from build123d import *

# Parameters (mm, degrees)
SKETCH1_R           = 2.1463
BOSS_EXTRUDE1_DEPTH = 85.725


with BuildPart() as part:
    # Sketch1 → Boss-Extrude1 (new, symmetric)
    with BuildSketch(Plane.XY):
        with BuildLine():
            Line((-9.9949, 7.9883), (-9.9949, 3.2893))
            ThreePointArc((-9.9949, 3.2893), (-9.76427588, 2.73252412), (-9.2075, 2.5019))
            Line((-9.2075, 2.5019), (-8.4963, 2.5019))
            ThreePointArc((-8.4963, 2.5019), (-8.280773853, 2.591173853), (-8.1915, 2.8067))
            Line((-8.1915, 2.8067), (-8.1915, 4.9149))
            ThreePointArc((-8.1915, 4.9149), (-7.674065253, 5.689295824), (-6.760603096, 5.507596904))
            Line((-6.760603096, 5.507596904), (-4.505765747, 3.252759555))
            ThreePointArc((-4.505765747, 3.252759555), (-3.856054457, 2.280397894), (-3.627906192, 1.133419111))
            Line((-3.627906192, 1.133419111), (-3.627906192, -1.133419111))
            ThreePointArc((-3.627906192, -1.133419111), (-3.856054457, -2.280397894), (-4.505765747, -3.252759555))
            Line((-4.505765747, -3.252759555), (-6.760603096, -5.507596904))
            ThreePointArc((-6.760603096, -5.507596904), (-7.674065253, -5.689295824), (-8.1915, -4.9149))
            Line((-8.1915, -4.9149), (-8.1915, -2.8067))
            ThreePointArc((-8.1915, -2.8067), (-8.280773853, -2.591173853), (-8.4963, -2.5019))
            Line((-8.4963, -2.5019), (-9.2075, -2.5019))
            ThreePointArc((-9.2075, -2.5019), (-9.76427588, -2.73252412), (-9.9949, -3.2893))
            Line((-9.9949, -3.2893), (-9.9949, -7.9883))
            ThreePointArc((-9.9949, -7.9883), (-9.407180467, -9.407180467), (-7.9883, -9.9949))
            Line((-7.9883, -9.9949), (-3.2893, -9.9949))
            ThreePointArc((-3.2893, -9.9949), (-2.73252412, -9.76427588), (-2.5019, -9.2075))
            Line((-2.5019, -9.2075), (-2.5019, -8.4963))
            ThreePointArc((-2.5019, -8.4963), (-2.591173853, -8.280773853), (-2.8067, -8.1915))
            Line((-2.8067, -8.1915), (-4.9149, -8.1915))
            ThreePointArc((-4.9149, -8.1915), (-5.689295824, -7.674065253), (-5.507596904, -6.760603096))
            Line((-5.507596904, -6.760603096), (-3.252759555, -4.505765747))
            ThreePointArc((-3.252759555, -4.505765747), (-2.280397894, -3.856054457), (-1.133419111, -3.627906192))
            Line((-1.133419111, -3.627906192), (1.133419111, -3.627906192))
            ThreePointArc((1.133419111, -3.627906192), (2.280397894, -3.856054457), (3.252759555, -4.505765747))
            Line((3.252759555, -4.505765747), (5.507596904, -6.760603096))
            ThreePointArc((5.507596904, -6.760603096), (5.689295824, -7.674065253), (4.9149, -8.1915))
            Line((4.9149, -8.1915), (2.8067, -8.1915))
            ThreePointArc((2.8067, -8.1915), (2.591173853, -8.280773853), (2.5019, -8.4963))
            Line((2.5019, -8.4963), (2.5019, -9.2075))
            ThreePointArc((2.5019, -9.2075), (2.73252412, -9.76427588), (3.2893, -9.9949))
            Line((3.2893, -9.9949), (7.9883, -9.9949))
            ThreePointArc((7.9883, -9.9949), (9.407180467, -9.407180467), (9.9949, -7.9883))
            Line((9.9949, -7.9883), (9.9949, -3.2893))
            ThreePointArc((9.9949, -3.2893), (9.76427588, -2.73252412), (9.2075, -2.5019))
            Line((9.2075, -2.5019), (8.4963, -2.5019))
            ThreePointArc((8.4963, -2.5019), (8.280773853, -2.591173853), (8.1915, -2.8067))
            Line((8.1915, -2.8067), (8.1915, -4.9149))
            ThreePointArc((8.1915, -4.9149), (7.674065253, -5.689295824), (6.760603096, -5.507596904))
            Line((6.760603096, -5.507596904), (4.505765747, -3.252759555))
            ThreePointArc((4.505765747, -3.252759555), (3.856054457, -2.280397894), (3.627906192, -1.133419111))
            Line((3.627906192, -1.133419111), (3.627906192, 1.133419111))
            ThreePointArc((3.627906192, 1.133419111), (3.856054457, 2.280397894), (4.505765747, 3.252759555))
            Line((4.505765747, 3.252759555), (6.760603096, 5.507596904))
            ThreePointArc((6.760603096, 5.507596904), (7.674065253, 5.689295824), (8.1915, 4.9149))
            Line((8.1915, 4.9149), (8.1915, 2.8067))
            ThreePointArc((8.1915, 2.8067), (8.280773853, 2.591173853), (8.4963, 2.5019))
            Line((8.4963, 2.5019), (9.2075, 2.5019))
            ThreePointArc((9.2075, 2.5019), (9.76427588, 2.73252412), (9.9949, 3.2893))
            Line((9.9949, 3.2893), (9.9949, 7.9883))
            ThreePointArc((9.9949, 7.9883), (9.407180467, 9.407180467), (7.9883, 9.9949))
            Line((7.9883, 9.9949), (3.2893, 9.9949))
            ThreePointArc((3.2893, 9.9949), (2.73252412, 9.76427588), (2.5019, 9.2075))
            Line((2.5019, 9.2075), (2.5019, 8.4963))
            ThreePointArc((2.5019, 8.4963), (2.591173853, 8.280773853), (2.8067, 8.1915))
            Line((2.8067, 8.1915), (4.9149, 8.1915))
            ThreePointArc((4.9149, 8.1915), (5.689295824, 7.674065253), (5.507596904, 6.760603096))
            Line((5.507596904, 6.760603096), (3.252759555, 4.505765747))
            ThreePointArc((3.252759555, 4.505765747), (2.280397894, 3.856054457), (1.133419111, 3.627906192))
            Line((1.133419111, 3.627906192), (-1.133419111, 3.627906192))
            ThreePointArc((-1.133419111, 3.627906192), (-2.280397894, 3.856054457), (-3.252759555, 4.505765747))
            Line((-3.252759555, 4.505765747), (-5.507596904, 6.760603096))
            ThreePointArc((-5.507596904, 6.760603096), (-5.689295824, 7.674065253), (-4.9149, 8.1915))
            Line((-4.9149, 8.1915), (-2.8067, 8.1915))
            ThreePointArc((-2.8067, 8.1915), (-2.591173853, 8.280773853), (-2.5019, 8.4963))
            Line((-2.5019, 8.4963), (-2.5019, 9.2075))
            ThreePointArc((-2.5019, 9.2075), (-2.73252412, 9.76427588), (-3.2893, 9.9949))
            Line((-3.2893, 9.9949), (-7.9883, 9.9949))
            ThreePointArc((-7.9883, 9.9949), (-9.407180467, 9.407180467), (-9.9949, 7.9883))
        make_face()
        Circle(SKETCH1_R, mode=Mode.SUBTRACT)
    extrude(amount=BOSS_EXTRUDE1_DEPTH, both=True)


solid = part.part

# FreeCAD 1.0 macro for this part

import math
import FreeCAD as App
import Part
import Sketcher
Q = App.Units.Quantity

doc = App.newDocument("Part")
body = doc.addObject("PartDesign::Body", "Body")

sketch1 = body.newObject("Sketcher::SketchObject", "Sketch")
sketch1.AttachmentSupport = (doc.getObject("XY_Plane"), [""])
sketch1.MapMode = "FlatFace"
sketch1.addGeometry([
    Part.LineSegment(App.Vector(-9.9949, 7.9883, 0), App.Vector(-9.9949, 3.2893, 0)),
    Part.ArcOfCircle(Part.Circle(App.Vector(-9.2075, 3.2893, 0), App.Vector(0, 0, 1), 0.7874), math.radians(180), math.radians(270)),
    Part.LineSegment(App.Vector(-9.2075, 2.5019, 0), App.Vector(-8.4963, 2.5019, 0)),
    Part.ArcOfCircle(Part.Circle(App.Vector(-8.4963, 2.8067, 0), App.Vector(0, 0, 1), 0.3048), math.radians(-90), math.radians(0)),
    Part.LineSegment(App.Vector(-8.1915, 2.8067, 0), App.Vector(-8.1915, 4.9149, 0)),
    Part.ArcOfCircle(Part.Circle(App.Vector(-7.3533, 4.9149, 0), App.Vector(0, 0, 1), 0.8382), math.radians(45), math.radians(180)),
    Part.LineSegment(App.Vector(-6.760603, 5.507597, 0), App.Vector(-4.505766, 3.25276, 0)),
    Part.ArcOfCircle(Part.Circle(App.Vector(-6.625106, 1.133419, 0), App.Vector(0, 0, 1), 2.9972), math.radians(0), math.radians(45)),
    Part.LineSegment(App.Vector(-3.627906, 1.133419, 0), App.Vector(-3.627906, -1.133419, 0)),
    Part.ArcOfCircle(Part.Circle(App.Vector(-6.625106, -1.133419, 0), App.Vector(0, 0, 1), 2.9972), math.radians(-45), math.radians(0)),
    Part.LineSegment(App.Vector(-4.505766, -3.25276, 0), App.Vector(-6.760603, -5.507597, 0)),
    Part.ArcOfCircle(Part.Circle(App.Vector(-7.3533, -4.9149, 0), App.Vector(0, 0, 1), 0.8382), math.radians(180), math.radians(315)),
    Part.LineSegment(App.Vector(-8.1915, -4.9149, 0), App.Vector(-8.1915, -2.8067, 0)),
    Part.ArcOfCircle(Part.Circle(App.Vector(-8.4963, -2.8067, 0), App.Vector(0, 0, 1), 0.3048), math.radians(0), math.radians(90)),
    Part.LineSegment(App.Vector(-8.4963, -2.5019, 0), App.Vector(-9.2075, -2.5019, 0)),
    Part.ArcOfCircle(Part.Circle(App.Vector(-9.2075, -3.2893, 0), App.Vector(0, 0, 1), 0.7874), math.radians(90), math.radians(180)),
    Part.LineSegment(App.Vector(-9.9949, -3.2893, 0), App.Vector(-9.9949, -7.9883, 0)),
    Part.ArcOfCircle(Part.Circle(App.Vector(-7.9883, -7.9883, 0), App.Vector(0, 0, 1), 2.0066), math.radians(180), math.radians(270)),
    Part.LineSegment(App.Vector(-7.9883, -9.9949, 0), App.Vector(-3.2893, -9.9949, 0)),
    Part.ArcOfCircle(Part.Circle(App.Vector(-3.2893, -9.2075, 0), App.Vector(0, 0, 1), 0.7874), math.radians(-90), math.radians(0)),
    Part.LineSegment(App.Vector(-2.5019, -9.2075, 0), App.Vector(-2.5019, -8.4963, 0)),
    Part.ArcOfCircle(Part.Circle(App.Vector(-2.8067, -8.4963, 0), App.Vector(0, 0, 1), 0.3048), math.radians(0), math.radians(90)),
    Part.LineSegment(App.Vector(-2.8067, -8.1915, 0), App.Vector(-4.9149, -8.1915, 0)),
    Part.ArcOfCircle(Part.Circle(App.Vector(-4.9149, -7.3533, 0), App.Vector(0, 0, 1), 0.8382), math.radians(135), math.radians(270)),
    Part.LineSegment(App.Vector(-5.507597, -6.760603, 0), App.Vector(-3.25276, -4.505766, 0)),
    Part.ArcOfCircle(Part.Circle(App.Vector(-1.133419, -6.625106, 0), App.Vector(0, 0, 1), 2.9972), math.radians(90), math.radians(135)),
    Part.LineSegment(App.Vector(-1.133419, -3.627906, 0), App.Vector(1.133419, -3.627906, 0)),
    Part.ArcOfCircle(Part.Circle(App.Vector(1.133419, -6.625106, 0), App.Vector(0, 0, 1), 2.9972), math.radians(45), math.radians(90)),
    Part.LineSegment(App.Vector(3.25276, -4.505766, 0), App.Vector(5.507597, -6.760603, 0)),
    Part.ArcOfCircle(Part.Circle(App.Vector(4.9149, -7.3533, 0), App.Vector(0, 0, 1), 0.8382), math.radians(-90), math.radians(45)),
    Part.LineSegment(App.Vector(4.9149, -8.1915, 0), App.Vector(2.8067, -8.1915, 0)),
    Part.ArcOfCircle(Part.Circle(App.Vector(2.8067, -8.4963, 0), App.Vector(0, 0, 1), 0.3048), math.radians(90), math.radians(180)),
    Part.LineSegment(App.Vector(2.5019, -8.4963, 0), App.Vector(2.5019, -9.2075, 0)),
    Part.ArcOfCircle(Part.Circle(App.Vector(3.2893, -9.2075, 0), App.Vector(0, 0, 1), 0.7874), math.radians(180), math.radians(270)),
    Part.LineSegment(App.Vector(3.2893, -9.9949, 0), App.Vector(7.9883, -9.9949, 0)),
    Part.ArcOfCircle(Part.Circle(App.Vector(7.9883, -7.9883, 0), App.Vector(0, 0, 1), 2.0066), math.radians(-90), math.radians(0)),
    Part.LineSegment(App.Vector(9.9949, -7.9883, 0), App.Vector(9.9949, -3.2893, 0)),
    Part.ArcOfCircle(Part.Circle(App.Vector(9.2075, -3.2893, 0), App.Vector(0, 0, 1), 0.7874), math.radians(0), math.radians(90)),
    Part.LineSegment(App.Vector(9.2075, -2.5019, 0), App.Vector(8.4963, -2.5019, 0)),
    Part.ArcOfCircle(Part.Circle(App.Vector(8.4963, -2.8067, 0), App.Vector(0, 0, 1), 0.3048), math.radians(90), math.radians(180)),
    Part.LineSegment(App.Vector(8.1915, -2.8067, 0), App.Vector(8.1915, -4.9149, 0)),
    Part.ArcOfCircle(Part.Circle(App.Vector(7.3533, -4.9149, 0), App.Vector(0, 0, 1), 0.8382), math.radians(-135), math.radians(0)),
    Part.LineSegment(App.Vector(6.760603, -5.507597, 0), App.Vector(4.505766, -3.25276, 0)),
    Part.ArcOfCircle(Part.Circle(App.Vector(6.625106, -1.133419, 0), App.Vector(0, 0, 1), 2.9972), math.radians(180), math.radians(225)),
    Part.LineSegment(App.Vector(3.627906, -1.133419, 0), App.Vector(3.627906, 1.133419, 0)),
    Part.ArcOfCircle(Part.Circle(App.Vector(6.625106, 1.133419, 0), App.Vector(0, 0, 1), 2.9972), math.radians(135), math.radians(180)),
    Part.LineSegment(App.Vector(4.505766, 3.25276, 0), App.Vector(6.760603, 5.507597, 0)),
    Part.ArcOfCircle(Part.Circle(App.Vector(7.3533, 4.9149, 0), App.Vector(0, 0, 1), 0.8382), math.radians(0), math.radians(135)),
    Part.LineSegment(App.Vector(8.1915, 4.9149, 0), App.Vector(8.1915, 2.8067, 0)),
    Part.ArcOfCircle(Part.Circle(App.Vector(8.4963, 2.8067, 0), App.Vector(0, 0, 1), 0.3048), math.radians(180), math.radians(270)),
    Part.LineSegment(App.Vector(8.4963, 2.5019, 0), App.Vector(9.2075, 2.5019, 0)),
    Part.ArcOfCircle(Part.Circle(App.Vector(9.2075, 3.2893, 0), App.Vector(0, 0, 1), 0.7874), math.radians(-90), math.radians(0)),
    Part.LineSegment(App.Vector(9.9949, 3.2893, 0), App.Vector(9.9949, 7.9883, 0)),
    Part.ArcOfCircle(Part.Circle(App.Vector(7.9883, 7.9883, 0), App.Vector(0, 0, 1), 2.0066), math.radians(0), math.radians(90)),
    Part.LineSegment(App.Vector(7.9883, 9.9949, 0), App.Vector(3.2893, 9.9949, 0)),
    Part.ArcOfCircle(Part.Circle(App.Vector(3.2893, 9.2075, 0), App.Vector(0, 0, 1), 0.7874), math.radians(90), math.radians(180)),
    Part.LineSegment(App.Vector(2.5019, 9.2075, 0), App.Vector(2.5019, 8.4963, 0)),
    Part.ArcOfCircle(Part.Circle(App.Vector(2.8067, 8.4963, 0), App.Vector(0, 0, 1), 0.3048), math.radians(180), math.radians(270)),
    Part.LineSegment(App.Vector(2.8067, 8.1915, 0), App.Vector(4.9149, 8.1915, 0)),
    Part.ArcOfCircle(Part.Circle(App.Vector(4.9149, 7.3533, 0), App.Vector(0, 0, 1), 0.8382), math.radians(-45), math.radians(90)),
    Part.LineSegment(App.Vector(5.507597, 6.760603, 0), App.Vector(3.25276, 4.505766, 0)),
    Part.ArcOfCircle(Part.Circle(App.Vector(1.133419, 6.625106, 0), App.Vector(0, 0, 1), 2.9972), math.radians(-90), math.radians(-45)),
    Part.LineSegment(App.Vector(1.133419, 3.627906, 0), App.Vector(-1.133419, 3.627906, 0)),
    Part.ArcOfCircle(Part.Circle(App.Vector(-1.133419, 6.625106, 0), App.Vector(0, 0, 1), 2.9972), math.radians(-135), math.radians(-90)),
    Part.LineSegment(App.Vector(-3.25276, 4.505766, 0), App.Vector(-5.507597, 6.760603, 0)),
    Part.ArcOfCircle(Part.Circle(App.Vector(-4.9149, 7.3533, 0), App.Vector(0, 0, 1), 0.8382), math.radians(90), math.radians(225)),
    Part.LineSegment(App.Vector(-4.9149, 8.1915, 0), App.Vector(-2.8067, 8.1915, 0)),
    Part.ArcOfCircle(Part.Circle(App.Vector(-2.8067, 8.4963, 0), App.Vector(0, 0, 1), 0.3048), math.radians(-90), math.radians(0)),
    Part.LineSegment(App.Vector(-2.5019, 8.4963, 0), App.Vector(-2.5019, 9.2075, 0)),
    Part.ArcOfCircle(Part.Circle(App.Vector(-3.2893, 9.2075, 0), App.Vector(0, 0, 1), 0.7874), math.radians(0), math.radians(90)),
    Part.LineSegment(App.Vector(-3.2893, 9.9949, 0), App.Vector(-7.9883, 9.9949, 0)),
    Part.ArcOfCircle(Part.Circle(App.Vector(-7.9883, 7.9883, 0), App.Vector(0, 0, 1), 2.0066), math.radians(90), math.radians(180)),
    Part.Circle(App.Vector(0, 0, 0), App.Vector(0, 0, 1), 2.1463),
], False)
sketch1.addConstraint([
    Sketcher.Constraint("Tangent", 0, 2, 1, 1),
    Sketcher.Constraint("Tangent", 1, 2, 2, 1),
    Sketcher.Constraint("Tangent", 2, 2, 3, 1),
    Sketcher.Constraint("Tangent", 3, 2, 4, 1),
    Sketcher.Constraint("Tangent", 4, 2, 5, 2),
    Sketcher.Constraint("Tangent", 5, 1, 6, 1),
    Sketcher.Constraint("Tangent", 6, 2, 7, 2),
    Sketcher.Constraint("Tangent", 7, 1, 8, 1),
    Sketcher.Constraint("Tangent", 8, 2, 9, 2),
    Sketcher.Constraint("Tangent", 9, 1, 10, 1),
    Sketcher.Constraint("Tangent", 10, 2, 11, 2),
    Sketcher.Constraint("Tangent", 11, 1, 12, 1),
    Sketcher.Constraint("Tangent", 12, 2, 13, 1),
    Sketcher.Constraint("Tangent", 13, 2, 14, 1),
    Sketcher.Constraint("Tangent", 14, 2, 15, 1),
    Sketcher.Constraint("Tangent", 15, 2, 16, 1),
    Sketcher.Constraint("Tangent", 16, 2, 17, 1),
    Sketcher.Constraint("Tangent", 17, 2, 18, 1),
    Sketcher.Constraint("Tangent", 18, 2, 19, 1),
    Sketcher.Constraint("Tangent", 19, 2, 20, 1),
    Sketcher.Constraint("Tangent", 20, 2, 21, 1),
    Sketcher.Constraint("Tangent", 21, 2, 22, 1),
    Sketcher.Constraint("Tangent", 22, 2, 23, 2),
    Sketcher.Constraint("Tangent", 23, 1, 24, 1),
    Sketcher.Constraint("Tangent", 24, 2, 25, 2),
    Sketcher.Constraint("Tangent", 25, 1, 26, 1),
    Sketcher.Constraint("Tangent", 26, 2, 27, 2),
    Sketcher.Constraint("Tangent", 27, 1, 28, 1),
    Sketcher.Constraint("Tangent", 28, 2, 29, 2),
    Sketcher.Constraint("Tangent", 29, 1, 30, 1),
    Sketcher.Constraint("Tangent", 30, 2, 31, 1),
    Sketcher.Constraint("Tangent", 31, 2, 32, 1),
    Sketcher.Constraint("Tangent", 32, 2, 33, 1),
    Sketcher.Constraint("Tangent", 33, 2, 34, 1),
    Sketcher.Constraint("Tangent", 34, 2, 35, 1),
    Sketcher.Constraint("Tangent", 35, 2, 36, 1),
    Sketcher.Constraint("Tangent", 36, 2, 37, 1),
    Sketcher.Constraint("Tangent", 37, 2, 38, 1),
    Sketcher.Constraint("Tangent", 38, 2, 39, 1),
    Sketcher.Constraint("Tangent", 39, 2, 40, 1),
    Sketcher.Constraint("Tangent", 40, 2, 41, 2),
    Sketcher.Constraint("Tangent", 41, 1, 42, 1),
    Sketcher.Constraint("Tangent", 42, 2, 43, 2),
    Sketcher.Constraint("Tangent", 43, 1, 44, 1),
    Sketcher.Constraint("Tangent", 44, 2, 45, 2),
    Sketcher.Constraint("Tangent", 45, 1, 46, 1),
    Sketcher.Constraint("Tangent", 46, 2, 47, 2),
    Sketcher.Constraint("Tangent", 47, 1, 48, 1),
    Sketcher.Constraint("Tangent", 48, 2, 49, 1),
    Sketcher.Constraint("Tangent", 49, 2, 50, 1),
    Sketcher.Constraint("Tangent", 50, 2, 51, 1),
    Sketcher.Constraint("Tangent", 51, 2, 52, 1),
    Sketcher.Constraint("Tangent", 52, 2, 53, 1),
    Sketcher.Constraint("Tangent", 53, 2, 54, 1),
    Sketcher.Constraint("Tangent", 54, 2, 55, 1),
    Sketcher.Constraint("Tangent", 55, 2, 56, 1),
    Sketcher.Constraint("Tangent", 56, 2, 57, 1),
    Sketcher.Constraint("Tangent", 57, 2, 58, 1),
    Sketcher.Constraint("Tangent", 58, 2, 59, 2),
    Sketcher.Constraint("Tangent", 59, 1, 60, 1),
    Sketcher.Constraint("Tangent", 60, 2, 61, 2),
    Sketcher.Constraint("Tangent", 61, 1, 62, 1),
    Sketcher.Constraint("Tangent", 62, 2, 63, 2),
    Sketcher.Constraint("Tangent", 63, 1, 64, 1),
    Sketcher.Constraint("Tangent", 64, 2, 65, 2),
    Sketcher.Constraint("Tangent", 65, 1, 66, 1),
    Sketcher.Constraint("Tangent", 66, 2, 67, 1),
    Sketcher.Constraint("Tangent", 67, 2, 68, 1),
    Sketcher.Constraint("Tangent", 68, 2, 69, 1),
    Sketcher.Constraint("Tangent", 69, 2, 70, 1),
    Sketcher.Constraint("Tangent", 70, 2, 71, 1),
    Sketcher.Constraint("Tangent", 71, 2, 0, 1),
    Sketcher.Constraint("Vertical", 0),
    Sketcher.Constraint("Horizontal", 2),
    Sketcher.Constraint("Vertical", 4),
    Sketcher.Constraint("Vertical", 8),
    Sketcher.Constraint("Vertical", 12),
    Sketcher.Constraint("Horizontal", 14),
    Sketcher.Constraint("Vertical", 16),
    Sketcher.Constraint("Horizontal", 18),
    Sketcher.Constraint("Vertical", 20),
    Sketcher.Constraint("Horizontal", 22),
    Sketcher.Constraint("Horizontal", 26),
    Sketcher.Constraint("Horizontal", 30),
    Sketcher.Constraint("Vertical", 32),
    Sketcher.Constraint("Horizontal", 34),
    Sketcher.Constraint("Vertical", 36),
    Sketcher.Constraint("Horizontal", 38),
    Sketcher.Constraint("Vertical", 40),
    Sketcher.Constraint("Vertical", 44),
    Sketcher.Constraint("Vertical", 48),
    Sketcher.Constraint("Horizontal", 50),
    Sketcher.Constraint("Vertical", 52),
    Sketcher.Constraint("Horizontal", 54),
    Sketcher.Constraint("Vertical", 56),
    Sketcher.Constraint("Horizontal", 58),
    Sketcher.Constraint("Horizontal", 62),
    Sketcher.Constraint("Horizontal", 66),
    Sketcher.Constraint("Vertical", 68),
    Sketcher.Constraint("Horizontal", 70),
    Sketcher.Constraint("Coincident", 72, 3, -1, 1),
    Sketcher.Constraint("Equal", 7, 9),
    Sketcher.Constraint("Equal", 5, 11),
    Sketcher.Constraint("Equal", 3, 13),
    Sketcher.Constraint("Equal", 1, 15),
    Sketcher.Constraint("Equal", 15, 19),
    Sketcher.Constraint("Equal", 13, 21),
    Sketcher.Constraint("Equal", 11, 23),
    Sketcher.Constraint("Equal", 9, 25),
    Sketcher.Constraint("Equal", 25, 27),
    Sketcher.Constraint("Equal", 23, 29),
    Sketcher.Constraint("Equal", 21, 31),
    Sketcher.Constraint("Equal", 19, 33),
    Sketcher.Constraint("Equal", 17, 35),
    Sketcher.Constraint("Equal", 33, 37),
    Sketcher.Constraint("Equal", 31, 39),
    Sketcher.Constraint("Equal", 29, 41),
    Sketcher.Constraint("Equal", 27, 43),
    Sketcher.Constraint("Equal", 43, 45),
    Sketcher.Constraint("Equal", 41, 47),
    Sketcher.Constraint("Equal", 39, 49),
    Sketcher.Constraint("Equal", 37, 51),
    Sketcher.Constraint("Equal", 35, 53),
    Sketcher.Constraint("Equal", 51, 55),
    Sketcher.Constraint("Equal", 49, 57),
    Sketcher.Constraint("Equal", 47, 59),
    Sketcher.Constraint("Equal", 45, 61),
    Sketcher.Constraint("Equal", 61, 63),
    Sketcher.Constraint("Equal", 59, 65),
    Sketcher.Constraint("Equal", 57, 67),
    Sketcher.Constraint("Equal", 55, 69),
    Sketcher.Constraint("Equal", 53, 71),
    Sketcher.Constraint("Symmetric", 1, 3, 37, 3, -1, 1),
    Sketcher.Constraint("Symmetric", 5, 3, 41, 3, -1, 1),
    Sketcher.Constraint("Symmetric", 7, 3, 43, 3, -1, 1),
    Sketcher.Constraint("Symmetric", 11, 3, 47, 3, -1, 1),
    Sketcher.Constraint("Symmetric", 15, 3, 51, 3, -1, 1),
    Sketcher.Constraint("Symmetric", 19, 3, 55, 3, -1, 1),
    Sketcher.Constraint("Symmetric", 23, 3, 59, 3, -1, 1),
    Sketcher.Constraint("Symmetric", 25, 3, 61, 3, -1, 1),
    Sketcher.Constraint("Symmetric", 29, 3, 65, 3, -1, 1),
    Sketcher.Constraint("Symmetric", 33, 3, 69, 3, -1, 1),
    Sketcher.Constraint("Symmetric", 23, 3, 29, 3, -2),
    Sketcher.Constraint("Symmetric", 19, 3, 33, 3, -2),
    Sketcher.Constraint("Symmetric", 15, 3, 37, 3, -2),
    Sketcher.Constraint("Symmetric", 11, 3, 41, 3, -2),
    Sketcher.Constraint("Perpendicular", 6, 10),
    Sketcher.Constraint("Parallel", 10, 24),
    Sketcher.Constraint("Perpendicular", 24, 28),
    Sketcher.Constraint("Perpendicular", 42, 46),
    Sketcher.Constraint("Perpendicular", 60, 64),
    Sketcher.Constraint("Horizontal", 9, 3, 43, 3),
    Sketcher.Constraint("Equal", 70, 0),
    Sketcher.Constraint("Equal", 66, 4),
    Sketcher.Constraint("Equal", 62, 8),
    Sketcher.Constraint("Equal", 50, 20),
    Sketcher.Constraint("Equal", 10, 24),
    Sketcher.Constraint("Diameter", 72, Q("0.169 in")),
    Sketcher.Constraint("Radius", 1, Q("0.031 in")),
    Sketcher.Constraint("Radius", 3, Q("0.012 in")),
    Sketcher.Constraint("Radius", 5, Q("0.033 in")),
    Sketcher.Constraint("Radius", 7, Q("0.118 in")),
    Sketcher.Constraint("Radius", 17, Q("0.079 in")),
    Sketcher.Constraint("DistanceX", 2, 1, 2, 2, Q("0.028 in")),
    Sketcher.Constraint("DistanceX", 18, 1, 18, 2, Q("0.185 in")),
    Sketcher.Constraint("DistanceX", 22, 2, 22, 1, Q("0.083 in")),
    Sketcher.Constraint("DistanceX", 1, 3, -1, 1, Q("0.3625 in")),
    Sketcher.Constraint("DistanceX", 26, 1, 26, 2, 2.266838),
])
pad1 = body.newObject("PartDesign::Pad", "Pad")
pad1.Profile = sketch1
pad1.Length = Q("6.75 in")
pad1.Midplane = True

doc.recompute()
